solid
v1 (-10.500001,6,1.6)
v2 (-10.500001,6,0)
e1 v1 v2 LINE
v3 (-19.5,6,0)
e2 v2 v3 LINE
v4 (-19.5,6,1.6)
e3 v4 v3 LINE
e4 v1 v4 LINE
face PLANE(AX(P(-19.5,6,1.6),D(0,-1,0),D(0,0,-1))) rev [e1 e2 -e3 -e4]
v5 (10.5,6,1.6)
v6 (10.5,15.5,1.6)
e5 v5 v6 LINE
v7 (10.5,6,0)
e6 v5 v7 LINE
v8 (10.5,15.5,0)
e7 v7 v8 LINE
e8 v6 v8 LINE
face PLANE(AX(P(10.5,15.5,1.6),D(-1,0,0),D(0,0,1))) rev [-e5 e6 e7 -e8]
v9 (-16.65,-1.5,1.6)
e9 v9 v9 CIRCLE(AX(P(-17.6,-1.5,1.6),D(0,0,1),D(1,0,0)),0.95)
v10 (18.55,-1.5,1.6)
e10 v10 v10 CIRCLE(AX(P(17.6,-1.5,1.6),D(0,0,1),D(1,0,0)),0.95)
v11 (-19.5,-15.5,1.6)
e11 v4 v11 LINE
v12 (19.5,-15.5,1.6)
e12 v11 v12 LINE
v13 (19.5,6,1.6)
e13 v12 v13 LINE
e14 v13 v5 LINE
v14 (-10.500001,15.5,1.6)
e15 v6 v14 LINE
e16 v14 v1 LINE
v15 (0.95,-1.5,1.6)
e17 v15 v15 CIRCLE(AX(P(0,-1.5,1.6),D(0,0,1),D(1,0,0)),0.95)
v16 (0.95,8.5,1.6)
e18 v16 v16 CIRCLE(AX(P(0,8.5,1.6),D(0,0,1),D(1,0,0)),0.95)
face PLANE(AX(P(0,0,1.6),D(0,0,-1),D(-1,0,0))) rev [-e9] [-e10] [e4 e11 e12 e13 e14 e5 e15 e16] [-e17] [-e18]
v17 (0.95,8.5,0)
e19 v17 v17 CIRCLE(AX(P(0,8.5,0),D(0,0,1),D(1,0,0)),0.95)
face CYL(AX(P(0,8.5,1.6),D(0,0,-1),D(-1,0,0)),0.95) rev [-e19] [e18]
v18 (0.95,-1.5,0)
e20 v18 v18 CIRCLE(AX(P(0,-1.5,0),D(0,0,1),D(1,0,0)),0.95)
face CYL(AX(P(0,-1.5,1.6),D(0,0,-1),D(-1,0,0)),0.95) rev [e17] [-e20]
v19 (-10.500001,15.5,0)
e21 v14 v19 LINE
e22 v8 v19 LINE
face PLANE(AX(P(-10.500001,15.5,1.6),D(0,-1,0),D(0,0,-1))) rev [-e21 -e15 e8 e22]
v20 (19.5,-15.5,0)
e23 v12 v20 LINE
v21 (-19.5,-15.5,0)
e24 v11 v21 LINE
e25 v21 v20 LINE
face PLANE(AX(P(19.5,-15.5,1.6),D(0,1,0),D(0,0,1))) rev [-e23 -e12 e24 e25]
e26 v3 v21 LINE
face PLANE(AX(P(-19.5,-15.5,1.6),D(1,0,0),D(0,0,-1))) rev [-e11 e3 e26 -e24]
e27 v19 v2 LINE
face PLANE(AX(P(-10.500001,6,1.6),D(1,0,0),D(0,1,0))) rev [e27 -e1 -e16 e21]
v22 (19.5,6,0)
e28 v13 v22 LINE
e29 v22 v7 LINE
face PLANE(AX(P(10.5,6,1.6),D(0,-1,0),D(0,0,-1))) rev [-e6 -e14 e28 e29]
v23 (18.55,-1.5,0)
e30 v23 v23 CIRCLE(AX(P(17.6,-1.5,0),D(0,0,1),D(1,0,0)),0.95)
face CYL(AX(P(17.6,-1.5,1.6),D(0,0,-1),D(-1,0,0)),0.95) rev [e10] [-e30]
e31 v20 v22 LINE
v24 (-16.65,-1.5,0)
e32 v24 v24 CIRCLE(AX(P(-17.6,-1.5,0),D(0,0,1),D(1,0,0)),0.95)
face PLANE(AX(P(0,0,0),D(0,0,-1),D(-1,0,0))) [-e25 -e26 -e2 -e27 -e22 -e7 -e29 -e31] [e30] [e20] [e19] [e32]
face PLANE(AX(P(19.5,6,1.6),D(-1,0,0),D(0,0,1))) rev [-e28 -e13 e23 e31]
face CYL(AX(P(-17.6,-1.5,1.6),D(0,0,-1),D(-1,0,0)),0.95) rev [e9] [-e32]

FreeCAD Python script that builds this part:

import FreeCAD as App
import Part
import Sketcher
from FreeCAD import Vector
Q = App.Units.Quantity


def add_polygon(sketch, points):
    """Adds a closed chain of lines whose ends are joined by coincident constraints."""
    first, n = sketch.GeometryCount, len(points)
    for a, b in zip(points, points[1:] + points[:1]):
        sketch.addGeometry(Part.LineSegment(App.Vector(*a, 0), App.Vector(*b, 0)), False)
    for i in range(n):
        sketch.addConstraint(Sketcher.Constraint("Coincident", first + i, 2, first + (i + 1) % n, 1))

doc = App.newDocument("Part")
body = doc.addObject("PartDesign::Body", "Body")

# Sketch on XY plane
sketch1 = doc.addObject("Sketcher::SketchObject", "Sketch")
body.addObject(sketch1)
sketch1.AttachmentSupport = (doc.XY_Plane, [""])
sketch1.MapMode = "FlatFace"
add_polygon(sketch1, [(-10.500001, 6), (-19.5, 6), (-19.5, -15.5), (19.5, -15.5), (19.5, 6), (10.5, 6), (10.5, 15.5), (-10.500001, 15.5)])  # lines 0-7
sketch1.addGeometry(Part.Circle(Vector(17.6, -1.5, 0), Vector(0, 0, 1), 0.95), False)  # 8
sketch1.addGeometry(Part.Circle(Vector(0, -1.5, 0), Vector(0, 0, 1), 0.95), False)  # 9
sketch1.addGeometry(Part.Circle(Vector(-17.6, -1.5, 0), Vector(0, 0, 1), 0.95), False)  # 10
sketch1.addGeometry(Part.Circle(Vector(0, 8.5, 0), Vector(0, 0, 1), 0.95), False)  # 11
sketch1.addConstraint([
    Sketcher.Constraint("Horizontal", 0),
    Sketcher.Constraint("Vertical", 1),
    Sketcher.Constraint("Horizontal", 2),
    Sketcher.Constraint("Vertical", 3),
    Sketcher.Constraint("Horizontal", 4),
    Sketcher.Constraint("Vertical", 5),
    Sketcher.Constraint("Horizontal", 6),
    Sketcher.Constraint("Vertical", 7),
    Sketcher.Constraint("Equal", 8, 9),
    Sketcher.Constraint("Equal", 9, 10),
    Sketcher.Constraint("Equal", 10, 11),
    Sketcher.Constraint("Symmetric", 8, 3, 10, 3, -2),
    Sketcher.Constraint("Symmetric", 0, 2, 3, 2, -2),
    Sketcher.Constraint("PointOnObject", 9, 3, -2),
    Sketcher.Constraint("PointOnObject", 11, 3, -2),
    Sketcher.Constraint("Horizontal", 8, 3, 9, 3),
    Sketcher.Constraint("Equal", 0, 4),
    Sketcher.Constraint("Diameter", 8, Q("1.9 mm")),
    Sketcher.Constraint("DistanceX", 0, 2, 0, 1, Q("8.999999 mm")),
    Sketcher.Constraint("DistanceX", 2, 1, 2, 2, Q("39 mm")),
    Sketcher.Constraint("DistanceY", 1, 2, 1, 1, Q("21.5 mm")),
    Sketcher.Constraint("DistanceY", 5, 1, 5, 2, Q("9.5 mm")),
    Sketcher.Constraint("DistanceY", -1, 1, 0, 2, Q("6 mm")),
    Sketcher.Constraint("DistanceY", 9, 3, 11, 3, Q("10 mm")),
    Sketcher.Constraint("DistanceY", 1, 2, 10, 3, Q("14 mm")),
    Sketcher.Constraint("DistanceX", -1, 1, 8, 3, Q("17.6 mm")),
])
pad1 = doc.addObject("PartDesign::Pad", "Pad")
body.addObject(pad1)
pad1.Profile = sketch1
pad1.Length = 1.6

doc.recompute()
